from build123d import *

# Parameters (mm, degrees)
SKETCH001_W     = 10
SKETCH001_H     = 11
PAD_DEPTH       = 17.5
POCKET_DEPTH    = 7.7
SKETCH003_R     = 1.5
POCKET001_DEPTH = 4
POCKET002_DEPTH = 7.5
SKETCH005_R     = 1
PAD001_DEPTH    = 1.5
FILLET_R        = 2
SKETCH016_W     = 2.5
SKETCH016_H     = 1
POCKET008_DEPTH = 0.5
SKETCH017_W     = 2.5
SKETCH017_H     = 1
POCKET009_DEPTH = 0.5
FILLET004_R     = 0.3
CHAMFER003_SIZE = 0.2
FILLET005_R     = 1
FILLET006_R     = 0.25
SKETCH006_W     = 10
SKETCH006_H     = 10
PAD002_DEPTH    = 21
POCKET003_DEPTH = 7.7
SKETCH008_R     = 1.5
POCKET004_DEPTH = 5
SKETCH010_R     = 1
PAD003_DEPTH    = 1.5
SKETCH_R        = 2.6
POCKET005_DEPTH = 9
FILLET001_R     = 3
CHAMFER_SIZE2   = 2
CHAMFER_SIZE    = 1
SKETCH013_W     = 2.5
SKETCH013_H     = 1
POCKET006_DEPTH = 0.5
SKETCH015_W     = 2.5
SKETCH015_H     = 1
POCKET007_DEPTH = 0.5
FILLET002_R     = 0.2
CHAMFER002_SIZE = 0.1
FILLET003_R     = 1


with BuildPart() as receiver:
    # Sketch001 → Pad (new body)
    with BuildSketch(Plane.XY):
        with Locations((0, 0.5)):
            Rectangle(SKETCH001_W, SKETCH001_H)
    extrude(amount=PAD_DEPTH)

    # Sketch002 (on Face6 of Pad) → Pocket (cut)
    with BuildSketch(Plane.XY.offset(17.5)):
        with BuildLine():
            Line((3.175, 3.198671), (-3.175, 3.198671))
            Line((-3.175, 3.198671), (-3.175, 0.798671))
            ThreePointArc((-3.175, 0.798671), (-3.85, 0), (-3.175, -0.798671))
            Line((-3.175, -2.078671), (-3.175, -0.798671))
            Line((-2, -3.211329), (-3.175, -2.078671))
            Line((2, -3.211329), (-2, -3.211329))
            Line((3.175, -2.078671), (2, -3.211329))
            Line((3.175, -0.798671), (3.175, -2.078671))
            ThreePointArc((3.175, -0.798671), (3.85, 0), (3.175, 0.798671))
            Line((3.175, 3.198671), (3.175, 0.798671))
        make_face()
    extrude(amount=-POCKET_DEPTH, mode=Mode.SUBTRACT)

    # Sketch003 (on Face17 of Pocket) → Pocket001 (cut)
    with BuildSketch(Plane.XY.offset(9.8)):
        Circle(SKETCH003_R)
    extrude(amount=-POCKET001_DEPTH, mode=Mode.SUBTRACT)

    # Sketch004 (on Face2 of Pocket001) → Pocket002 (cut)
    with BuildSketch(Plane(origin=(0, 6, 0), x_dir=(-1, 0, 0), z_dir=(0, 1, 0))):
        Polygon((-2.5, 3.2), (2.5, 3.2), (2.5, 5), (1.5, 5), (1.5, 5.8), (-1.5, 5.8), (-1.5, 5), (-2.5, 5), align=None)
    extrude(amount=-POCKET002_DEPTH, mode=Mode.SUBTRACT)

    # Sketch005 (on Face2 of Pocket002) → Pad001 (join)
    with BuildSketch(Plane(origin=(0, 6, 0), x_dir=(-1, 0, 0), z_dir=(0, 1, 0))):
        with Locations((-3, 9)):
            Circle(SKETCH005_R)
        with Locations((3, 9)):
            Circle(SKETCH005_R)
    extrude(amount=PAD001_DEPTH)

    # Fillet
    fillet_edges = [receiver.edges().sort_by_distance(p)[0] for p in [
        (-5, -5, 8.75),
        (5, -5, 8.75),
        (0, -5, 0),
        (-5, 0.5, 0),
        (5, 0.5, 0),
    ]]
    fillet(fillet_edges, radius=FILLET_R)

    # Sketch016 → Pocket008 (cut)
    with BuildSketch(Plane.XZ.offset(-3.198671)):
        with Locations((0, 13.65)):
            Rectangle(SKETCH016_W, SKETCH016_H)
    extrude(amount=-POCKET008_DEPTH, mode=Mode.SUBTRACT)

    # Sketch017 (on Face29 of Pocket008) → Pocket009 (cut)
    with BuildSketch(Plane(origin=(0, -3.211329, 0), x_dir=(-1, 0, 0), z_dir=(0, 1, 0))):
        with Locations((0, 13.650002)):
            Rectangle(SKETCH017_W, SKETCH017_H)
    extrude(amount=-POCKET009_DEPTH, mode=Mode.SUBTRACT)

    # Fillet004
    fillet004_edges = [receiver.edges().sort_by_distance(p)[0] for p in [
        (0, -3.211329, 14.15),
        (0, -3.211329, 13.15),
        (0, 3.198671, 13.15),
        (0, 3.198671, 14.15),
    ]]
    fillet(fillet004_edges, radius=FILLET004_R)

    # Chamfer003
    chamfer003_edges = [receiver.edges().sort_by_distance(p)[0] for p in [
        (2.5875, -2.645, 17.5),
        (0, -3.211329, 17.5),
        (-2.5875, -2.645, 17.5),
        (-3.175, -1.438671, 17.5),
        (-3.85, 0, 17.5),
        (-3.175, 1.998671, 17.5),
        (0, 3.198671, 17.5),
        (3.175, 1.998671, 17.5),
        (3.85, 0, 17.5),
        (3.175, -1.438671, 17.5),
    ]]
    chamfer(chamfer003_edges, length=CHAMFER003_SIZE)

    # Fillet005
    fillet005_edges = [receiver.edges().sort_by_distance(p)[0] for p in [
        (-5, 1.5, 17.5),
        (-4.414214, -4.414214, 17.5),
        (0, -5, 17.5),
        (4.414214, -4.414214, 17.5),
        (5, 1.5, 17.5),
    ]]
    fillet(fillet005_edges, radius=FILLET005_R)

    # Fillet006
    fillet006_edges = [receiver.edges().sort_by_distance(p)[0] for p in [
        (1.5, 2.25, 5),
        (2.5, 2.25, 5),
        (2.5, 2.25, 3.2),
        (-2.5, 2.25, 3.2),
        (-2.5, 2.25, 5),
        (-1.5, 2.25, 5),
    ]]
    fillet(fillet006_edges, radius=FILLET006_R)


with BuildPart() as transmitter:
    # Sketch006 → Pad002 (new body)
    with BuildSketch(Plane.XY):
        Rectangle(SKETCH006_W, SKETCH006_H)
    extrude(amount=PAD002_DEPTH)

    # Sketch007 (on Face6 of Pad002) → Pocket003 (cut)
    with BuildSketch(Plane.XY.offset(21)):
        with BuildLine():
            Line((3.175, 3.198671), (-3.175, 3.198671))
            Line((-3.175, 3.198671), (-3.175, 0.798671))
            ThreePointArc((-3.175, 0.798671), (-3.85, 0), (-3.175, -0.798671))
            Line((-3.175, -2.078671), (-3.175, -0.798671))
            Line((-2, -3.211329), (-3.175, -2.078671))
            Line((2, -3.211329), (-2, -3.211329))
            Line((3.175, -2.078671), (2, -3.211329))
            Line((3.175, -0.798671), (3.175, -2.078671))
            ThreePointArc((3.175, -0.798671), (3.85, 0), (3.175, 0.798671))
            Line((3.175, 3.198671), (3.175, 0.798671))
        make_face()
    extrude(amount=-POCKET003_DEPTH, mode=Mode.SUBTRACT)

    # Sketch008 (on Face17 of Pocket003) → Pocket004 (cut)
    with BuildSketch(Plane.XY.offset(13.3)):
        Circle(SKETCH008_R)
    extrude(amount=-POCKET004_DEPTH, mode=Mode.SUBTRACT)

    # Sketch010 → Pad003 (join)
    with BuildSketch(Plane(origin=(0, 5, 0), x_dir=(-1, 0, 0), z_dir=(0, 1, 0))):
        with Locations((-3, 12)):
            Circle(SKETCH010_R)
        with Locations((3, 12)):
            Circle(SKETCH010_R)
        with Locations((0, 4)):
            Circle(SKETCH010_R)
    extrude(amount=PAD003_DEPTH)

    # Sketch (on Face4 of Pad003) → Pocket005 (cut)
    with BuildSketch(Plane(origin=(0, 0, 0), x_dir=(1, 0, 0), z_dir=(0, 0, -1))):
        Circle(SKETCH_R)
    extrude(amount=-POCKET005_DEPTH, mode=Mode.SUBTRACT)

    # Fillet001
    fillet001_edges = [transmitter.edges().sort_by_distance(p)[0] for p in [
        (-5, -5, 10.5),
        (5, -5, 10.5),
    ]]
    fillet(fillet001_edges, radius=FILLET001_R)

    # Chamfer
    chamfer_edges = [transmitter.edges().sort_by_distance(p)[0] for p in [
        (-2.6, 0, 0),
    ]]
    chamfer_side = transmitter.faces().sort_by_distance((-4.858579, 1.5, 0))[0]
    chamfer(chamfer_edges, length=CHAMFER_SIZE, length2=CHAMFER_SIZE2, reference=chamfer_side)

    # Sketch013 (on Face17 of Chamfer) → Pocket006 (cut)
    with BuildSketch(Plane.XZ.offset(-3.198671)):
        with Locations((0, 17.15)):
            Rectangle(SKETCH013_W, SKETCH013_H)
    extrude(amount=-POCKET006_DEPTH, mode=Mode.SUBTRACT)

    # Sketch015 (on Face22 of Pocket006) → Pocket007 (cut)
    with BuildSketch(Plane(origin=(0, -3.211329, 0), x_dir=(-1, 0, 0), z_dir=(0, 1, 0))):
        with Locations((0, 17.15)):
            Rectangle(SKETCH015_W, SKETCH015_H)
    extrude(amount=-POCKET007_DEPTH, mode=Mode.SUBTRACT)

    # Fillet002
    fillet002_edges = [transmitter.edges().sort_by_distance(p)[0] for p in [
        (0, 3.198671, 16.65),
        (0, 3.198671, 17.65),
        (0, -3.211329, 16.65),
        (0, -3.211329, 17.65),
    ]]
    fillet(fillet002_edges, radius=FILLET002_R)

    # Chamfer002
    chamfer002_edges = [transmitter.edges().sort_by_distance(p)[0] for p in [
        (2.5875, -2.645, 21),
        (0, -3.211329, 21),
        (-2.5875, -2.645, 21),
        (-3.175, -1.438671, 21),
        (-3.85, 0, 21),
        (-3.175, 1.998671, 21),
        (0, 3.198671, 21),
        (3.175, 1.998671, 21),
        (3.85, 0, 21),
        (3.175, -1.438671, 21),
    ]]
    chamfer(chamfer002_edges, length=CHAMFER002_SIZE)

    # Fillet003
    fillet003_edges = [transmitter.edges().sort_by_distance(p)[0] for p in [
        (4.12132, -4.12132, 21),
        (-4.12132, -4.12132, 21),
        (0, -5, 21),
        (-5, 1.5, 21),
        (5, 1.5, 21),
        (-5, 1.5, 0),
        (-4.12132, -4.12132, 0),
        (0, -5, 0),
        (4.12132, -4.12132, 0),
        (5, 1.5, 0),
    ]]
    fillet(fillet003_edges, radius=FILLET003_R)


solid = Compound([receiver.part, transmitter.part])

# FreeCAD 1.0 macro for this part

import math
import FreeCAD as App
import Part
import Sketcher
from FreeCAD import Vector


def edges_at(feature, points):
    """Names of the edges that pass closest to the given points."""
    edges = feature.Shape.Edges
    near = lambda p: min(range(len(edges)), key=lambda i: edges[i].distToShape(Part.Vertex(*p))[0])
    return sorted({f"Edge{near(p) + 1}" for p in points})

doc = App.newDocument("Part")
body = doc.addObject("PartDesign::Body", "Body")

sketch1 = doc.addObject("Sketcher::SketchObject", "Sketch")
body.addObject(sketch1)
sketch1.AttachmentSupport = (doc.XY_Plane, [""])
sketch1.MapMode = "FlatFace"
sketch1.addGeometry([
    Part.LineSegment(Vector(-5, 6, 0), Vector(-5, -5, 0)),
    Part.LineSegment(Vector(-5, -5, 0), Vector(5, -5, 0)),
    Part.LineSegment(Vector(5, -5, 0), Vector(5, 6, 0)),
    Part.LineSegment(Vector(5, 6, 0), Vector(-5, 6, 0)),
], False)
sketch1.addConstraint([
    Sketcher.Constraint("Coincident", 0, 2, 1, 1),
    Sketcher.Constraint("Coincident", 1, 2, 2, 1),
    Sketcher.Constraint("Coincident", 2, 2, 3, 1),
    Sketcher.Constraint("Coincident", 3, 2, 0, 1),
    Sketcher.Constraint("Vertical", 0),
    Sketcher.Constraint("Horizontal", 1),
    Sketcher.Constraint("Vertical", 2),
    Sketcher.Constraint("Horizontal", 3),
    Sketcher.Constraint("DistanceX", 1, 1, 1, 2, 10.0),
    Sketcher.Constraint("DistanceY", 0, 2, 0, 1, 11.0),
    Sketcher.Constraint("DistanceX", 0, 2, -1, 1, 5.0),
    Sketcher.Constraint("DistanceY", 0, 2, -1, 1, 5.0),
])
pad1 = doc.addObject("PartDesign::Pad", "Pad")
body.addObject(pad1)
pad1.Profile = sketch1
pad1.Length = 17.5

sketch2 = doc.addObject("Sketcher::SketchObject", "Sketch001")
body.addObject(sketch2)
sketch2.AttachmentSupport = (doc.XY_Plane, [""])
sketch2.MapMode = "FlatFace"
sketch2.AttachmentOffset = App.Placement(Vector(0, 0, 17.5), App.Rotation())
sketch2.addGeometry([
    Part.LineSegment(Vector(3.2, 3.2, 0), Vector(-3.2, 3.2, 0)),
    Part.LineSegment(Vector(-3.2, 3.2, 0), Vector(-3.2, 0.8, 0)),
    Part.ArcOfCircle(Part.Circle(Vector(-3, 0, 0), Vector(0, 0, 1), 0.8), math.radians(100), math.radians(260)),
    Part.LineSegment(Vector(-3.2, -0.8, 0), Vector(-3.2, -2.1, 0)),
    Part.LineSegment(Vector(-3.2, -2.1, 0), Vector(-2, -3.2, 0)),
    Part.LineSegment(Vector(-2, -3.2, 0), Vector(2, -3.2, 0)),
    Part.LineSegment(Vector(2, -3.2, 0), Vector(3.2, -2.1, 0)),
    Part.LineSegment(Vector(3.2, -2.1, 0), Vector(3.2, -0.8, 0)),
    Part.ArcOfCircle(Part.Circle(Vector(3, 0, 0), Vector(0, 0, 1), 0.8), math.radians(-80), math.radians(80)),
    Part.LineSegment(Vector(3.2, 0.8, 0), Vector(3.2, 3.2, 0)),
], False)
sketch2.addConstraint([
    Sketcher.Constraint("Coincident", 0, 2, 1, 1),
    Sketcher.Constraint("Coincident", 1, 2, 2, 1),
    Sketcher.Constraint("Coincident", 2, 2, 3, 1),
    Sketcher.Constraint("Coincident", 3, 2, 4, 1),
    Sketcher.Constraint("Coincident", 4, 2, 5, 1),
    Sketcher.Constraint("Coincident", 5, 2, 6, 1),
    Sketcher.Constraint("Coincident", 6, 2, 7, 1),
    Sketcher.Constraint("Coincident", 7, 2, 8, 1),
    Sketcher.Constraint("Coincident", 8, 2, 9, 1),
    Sketcher.Constraint("Coincident", 9, 2, 0, 1),
    Sketcher.Constraint("Horizontal", 0),
    Sketcher.Constraint("Vertical", 1),
    Sketcher.Constraint("Vertical", 3),
    Sketcher.Constraint("Horizontal", 5),
    Sketcher.Constraint("Vertical", 7),
    Sketcher.Constraint("Vertical", 9),
    Sketcher.Constraint("Equal", 2, 8),
    Sketcher.Constraint("Symmetric", 2, 3, 8, 3, -1, 1),
    Sketcher.Constraint("Symmetric", 3, 2, 6, 2, -2),
    Sketcher.Constraint("Symmetric", 1, 2, 8, 2, -2),
    Sketcher.Constraint("Vertical", 1, 2, 2, 2),
    Sketcher.Constraint("Equal", 4, 6),
    Sketcher.Constraint("DistanceX", 5, 1, 5, 2, 4.0),
    Sketcher.Constraint("Radius", 2, 0.81),
    Sketcher.Constraint("DistanceY", 1, 2, 1, 1, 2.4),
    Sketcher.Constraint("DistanceX", 0, 2, 0, 1, 6.35),
    Sketcher.Constraint("DistanceY", 3, 2, 3, 1, 1.28),
    Sketcher.Constraint("DistanceX", 2, 3, -1, 1, 3.04),
    Sketcher.Constraint("DistanceY", 4, 2, 1, 2, 4.01),
])
pocket1 = doc.addObject("PartDesign::Pocket", "Pocket")
body.addObject(pocket1)
pocket1.Profile = sketch2
pocket1.Length = 7.7

sketch3 = doc.addObject("Sketcher::SketchObject", "Sketch002")
body.addObject(sketch3)
sketch3.AttachmentSupport = (doc.XY_Plane, [""])
sketch3.MapMode = "FlatFace"
sketch3.AttachmentOffset = App.Placement(Vector(0, 0, 9.8), App.Rotation())
sketch3.addGeometry(Part.Circle(Vector(0, 0, 0), Vector(0, 0, 1), 1.5), False)
sketch3.addConstraint([
    Sketcher.Constraint("Coincident", 0, 3, -1, 1),
    Sketcher.Constraint("Diameter", 0, 3.0),
])
pocket2 = doc.addObject("PartDesign::Pocket", "Pocket001")
body.addObject(pocket2)
pocket2.Profile = sketch3
pocket2.Length = 4

sketch4 = doc.addObject("Sketcher::SketchObject", "Sketch003")
body.addObject(sketch4)
sketch4.AttachmentSupport = (doc.XZ_Plane, [""])
sketch4.MapMode = "FlatFace"
sketch4.AttachmentOffset = App.Placement(Vector(0, 0, -6), App.Rotation())
sketch4.addGeometry([
    Part.LineSegment(Vector(2.5, 3.2, 0), Vector(-2.5, 3.2, 0)),
    Part.LineSegment(Vector(-2.5, 3.2, 0), Vector(-2.5, 5, 0)),
    Part.LineSegment(Vector(-2.5, 5, 0), Vector(-1.5, 5, 0)),
    Part.LineSegment(Vector(-1.5, 5, 0), Vector(-1.5, 5.8, 0)),
    Part.LineSegment(Vector(-1.5, 5.8, 0), Vector(1.5, 5.8, 0)),
    Part.LineSegment(Vector(1.5, 5.8, 0), Vector(1.5, 5, 0)),
    Part.LineSegment(Vector(1.5, 5, 0), Vector(2.5, 5, 0)),
    Part.LineSegment(Vector(2.5, 5, 0), Vector(2.5, 3.2, 0)),
], False)
sketch4.addConstraint([
    Sketcher.Constraint("Coincident", 0, 2, 1, 1),
    Sketcher.Constraint("Coincident", 1, 2, 2, 1),
    Sketcher.Constraint("Coincident", 2, 2, 3, 1),
    Sketcher.Constraint("Coincident", 3, 2, 4, 1),
    Sketcher.Constraint("Coincident", 4, 2, 5, 1),
    Sketcher.Constraint("Coincident", 5, 2, 6, 1),
    Sketcher.Constraint("Coincident", 6, 2, 7, 1),
    Sketcher.Constraint("Coincident", 7, 2, 0, 1),
    Sketcher.Constraint("Horizontal", 0),
    Sketcher.Constraint("Vertical", 1),
    Sketcher.Constraint("Horizontal", 2),
    Sketcher.Constraint("Vertical", 3),
    Sketcher.Constraint("Horizontal", 4),
    Sketcher.Constraint("Vertical", 5),
    Sketcher.Constraint("Horizontal", 6),
    Sketcher.Constraint("Vertical", 7),
    Sketcher.Constraint("Symmetric", 2, 2, 5, 2, -2),
    Sketcher.Constraint("Equal", 2, 6),
    Sketcher.Constraint("DistanceX", 0, 2, 0, 1, 5.0),
    Sketcher.Constraint("DistanceX", 2, 1, 2, 2, 1.0),
    Sketcher.Constraint("DistanceY", 1, 1, 1, 2, 1.8),
    Sketcher.Constraint("DistanceY", 3, 1, 3, 2, 0.8),
    Sketcher.Constraint("DistanceY", -1, 1, 1, 2, 5.0),
])
pocket3 = doc.addObject("PartDesign::Pocket", "Pocket002")
body.addObject(pocket3)
pocket3.Profile = sketch4
pocket3.Length = 7.5
pocket3.Reversed = True

sketch5 = doc.addObject("Sketcher::SketchObject", "Sketch004")
body.addObject(sketch5)
sketch5.AttachmentSupport = (doc.XZ_Plane, [""])
sketch5.MapMode = "FlatFace"
sketch5.AttachmentOffset = App.Placement(Vector(0, 0, -6), App.Rotation())
sketch5.addGeometry([
    Part.Circle(Vector(3, 9, 0), Vector(0, 0, 1), 1),
    Part.Circle(Vector(-3, 9, 0), Vector(0, 0, 1), 1),
], False)
sketch5.addConstraint([
    Sketcher.Constraint("Equal", 0, 1),
    Sketcher.Constraint("Symmetric", 0, 3, 1, 3, -2),
    Sketcher.Constraint("Diameter", 0, 2.0),
    Sketcher.Constraint("DistanceX", -1, 1, 0, 3, 3.0),
    Sketcher.Constraint("DistanceY", -1, 1, 0, 3, 9.0),
])
pad2 = doc.addObject("PartDesign::Pad", "Pad001")
body.addObject(pad2)
pad2.Profile = sketch5
pad2.Length = 1.5
pad2.Reversed = True
doc.recompute()

fillet = doc.addObject("PartDesign::Fillet", "Fillet")
body.addObject(fillet)
fillet.Base = (pad2, edges_at(pad2, [
    (-5, -5, 8.75),
    (5, -5, 8.75),
    (0, -5, 0),
    (-5, 0.5, 0),
    (5, 0.5, 0),
]))
fillet.Radius = 2

sketch6 = doc.addObject("Sketcher::SketchObject", "Sketch005")
body.addObject(sketch6)
sketch6.AttachmentSupport = (doc.XZ_Plane, [""])
sketch6.MapMode = "FlatFace"
sketch6.AttachmentOffset = App.Placement(Vector(0, 0, -3.198671), App.Rotation())
sketch6.addGeometry([
    Part.LineSegment(Vector(-1.2, 14.2, 0), Vector(-1.2, 13.2, 0)),
    Part.LineSegment(Vector(-1.2, 13.2, 0), Vector(1.2, 13.2, 0)),
    Part.LineSegment(Vector(1.2, 13.2, 0), Vector(1.2, 14.2, 0)),
    Part.LineSegment(Vector(1.2, 14.2, 0), Vector(-1.2, 14.2, 0)),
], False)
sketch6.addConstraint([
    Sketcher.Constraint("Coincident", 0, 2, 1, 1),
    Sketcher.Constraint("Coincident", 1, 2, 2, 1),
    Sketcher.Constraint("Coincident", 2, 2, 3, 1),
    Sketcher.Constraint("Coincident", 3, 2, 0, 1),
    Sketcher.Constraint("Vertical", 0),
    Sketcher.Constraint("Horizontal", 1),
    Sketcher.Constraint("Vertical", 2),
    Sketcher.Constraint("Horizontal", 3),
    Sketcher.Constraint("DistanceY", 0, 2, 0, 1, 1.0),
    Sketcher.Constraint("DistanceX", 1, 1, 1, 2, 2.5),
    Sketcher.Constraint("DistanceX", 0, 2, -1, 1, 1.25),
    Sketcher.Constraint("DistanceY", -1, 1, 0, 2, 13.15),
])
pocket4 = doc.addObject("PartDesign::Pocket", "Pocket003")
body.addObject(pocket4)
pocket4.Profile = sketch6
pocket4.Length = 0.5

sketch7 = doc.addObject("Sketcher::SketchObject", "Sketch006")
body.addObject(sketch7)
sketch7.AttachmentSupport = (doc.XZ_Plane, [""])
sketch7.MapMode = "FlatFace"
sketch7.AttachmentOffset = App.Placement(Vector(0, 0, 3.211329), App.Rotation())
sketch7.addGeometry([
    Part.LineSegment(Vector(1.2, 14.2, 0), Vector(1.2, 13.2, 0)),
    Part.LineSegment(Vector(1.2, 13.2, 0), Vector(-1.2, 13.2, 0)),
    Part.LineSegment(Vector(-1.2, 13.2, 0), Vector(-1.2, 14.2, 0)),
    Part.LineSegment(Vector(-1.2, 14.2, 0), Vector(1.2, 14.2, 0)),
], False)
sketch7.addConstraint([
    Sketcher.Constraint("Coincident", 0, 2, 1, 1),
    Sketcher.Constraint("Coincident", 1, 2, 2, 1),
    Sketcher.Constraint("Coincident", 2, 2, 3, 1),
    Sketcher.Constraint("Coincident", 3, 2, 0, 1),
    Sketcher.Constraint("Vertical", 0),
    Sketcher.Constraint("Horizontal", 1),
    Sketcher.Constraint("Vertical", 2),
    Sketcher.Constraint("Horizontal", 3),
    Sketcher.Constraint("DistanceY", 0, 2, 0, 1, 1.0),
    Sketcher.Constraint("DistanceX", 1, 2, 1, 1, 2.5),
    Sketcher.Constraint("DistanceX", -1, 1, 0, 2, 1.25),
    Sketcher.Constraint("DistanceY", -1, 1, 0, 2, 13.150002),
])
pocket5 = doc.addObject("PartDesign::Pocket", "Pocket004")
body.addObject(pocket5)
pocket5.Profile = sketch7
pocket5.Length = 0.5
pocket5.Reversed = True
doc.recompute()

fillet2 = doc.addObject("PartDesign::Fillet", "Fillet001")
body.addObject(fillet2)
fillet2.Base = (pocket5, edges_at(pocket5, [
    (0, -3.211, 14.15),
    (0, -3.211, 13.15),
    (0, 3.199, 13.15),
    (0, 3.199, 14.15),
]))
fillet2.Radius = 0.3
doc.recompute()

chamfer = doc.addObject("PartDesign::Chamfer", "Chamfer")
body.addObject(chamfer)
chamfer.Base = (fillet2, edges_at(fillet2, [
    (2.587, -2.645, 17.5),
    (0, -3.211, 17.5),
    (-2.587, -2.645, 17.5),
    (-3.175, -1.439, 17.5),
    (-3.85, 0, 17.5),
    (-3.175, 1.999, 17.5),
    (0, 3.199, 17.5),
    (3.175, 1.999, 17.5),
    (3.85, 0, 17.5),
    (3.175, -1.439, 17.5),
]))
chamfer.Size = 0.2
doc.recompute()

fillet3 = doc.addObject("PartDesign::Fillet", "Fillet002")
body.addObject(fillet3)
fillet3.Base = (chamfer, edges_at(chamfer, [
    (-5, 1.5, 17.5),
    (-4.414, -4.414, 17.5),
    (0, -5, 17.5),
    (4.414, -4.414, 17.5),
    (5, 1.5, 17.5),
]))
fillet3.Radius = 1
doc.recompute()

fillet4 = doc.addObject("PartDesign::Fillet", "Fillet003")
body.addObject(fillet4)
fillet4.Base = (fillet3, edges_at(fillet3, [
    (1.5, 2.25, 5),
    (2.5, 2.25, 5),
    (2.5, 2.25, 3.2),
    (-2.5, 2.25, 3.2),
    (-2.5, 2.25, 5),
    (-1.5, 2.25, 5),
]))
fillet4.Radius = 0.25
body2 = doc.addObject("PartDesign::Body", "Body001")

sketch8 = doc.addObject("Sketcher::SketchObject", "Sketch007")
body2.addObject(sketch8)
sketch8.AttachmentSupport = (doc.getObject("XY_Plane001"), [""])
sketch8.MapMode = "FlatFace"
sketch8.addGeometry([
    Part.LineSegment(Vector(-5, 5, 0), Vector(-5, -5, 0)),
    Part.LineSegment(Vector(-5, -5, 0), Vector(5, -5, 0)),
    Part.LineSegment(Vector(5, -5, 0), Vector(5, 5, 0)),
    Part.LineSegment(Vector(5, 5, 0), Vector(-5, 5, 0)),
], False)
sketch8.addConstraint([
    Sketcher.Constraint("Coincident", 0, 2, 1, 1),
    Sketcher.Constraint("Coincident", 1, 2, 2, 1),
    Sketcher.Constraint("Coincident", 2, 2, 3, 1),
    Sketcher.Constraint("Coincident", 3, 2, 0, 1),
    Sketcher.Constraint("Vertical", 0),
    Sketcher.Constraint("Horizontal", 1),
    Sketcher.Constraint("Vertical", 2),
    Sketcher.Constraint("Horizontal", 3),
    Sketcher.Constraint("Symmetric", 0, 2, 2, 2, -1, 1),
    Sketcher.Constraint("Equal", 3, 0),
    Sketcher.Constraint("DistanceX", 1, 1, 1, 2, 10.0),
])
pad3 = doc.addObject("PartDesign::Pad", "Pad002")
body2.addObject(pad3)
pad3.Profile = sketch8
pad3.Length = 21

sketch9 = doc.addObject("Sketcher::SketchObject", "Sketch008")
body2.addObject(sketch9)
sketch9.AttachmentSupport = (doc.getObject("XY_Plane001"), [""])
sketch9.MapMode = "FlatFace"
sketch9.AttachmentOffset = App.Placement(Vector(0, 0, 21), App.Rotation())
sketch9.addGeometry([
    Part.LineSegment(Vector(3.2, 3.2, 0), Vector(-3.2, 3.2, 0)),
    Part.LineSegment(Vector(-3.2, 3.2, 0), Vector(-3.2, 0.8, 0)),
    Part.ArcOfCircle(Part.Circle(Vector(-3, 0, 0), Vector(0, 0, 1), 0.8), math.radians(100), math.radians(260)),
    Part.LineSegment(Vector(-3.2, -0.8, 0), Vector(-3.2, -2.1, 0)),
    Part.LineSegment(Vector(-3.2, -2.1, 0), Vector(-2, -3.2, 0)),
    Part.LineSegment(Vector(-2, -3.2, 0), Vector(2, -3.2, 0)),
    Part.LineSegment(Vector(2, -3.2, 0), Vector(3.2, -2.1, 0)),
    Part.LineSegment(Vector(3.2, -2.1, 0), Vector(3.2, -0.8, 0)),
    Part.ArcOfCircle(Part.Circle(Vector(3, 0, 0), Vector(0, 0, 1), 0.8), math.radians(-80), math.radians(80)),
    Part.LineSegment(Vector(3.2, 0.8, 0), Vector(3.2, 3.2, 0)),
], False)
sketch9.addConstraint([
    Sketcher.Constraint("Coincident", 0, 2, 1, 1),
    Sketcher.Constraint("Coincident", 1, 2, 2, 1),
    Sketcher.Constraint("Coincident", 2, 2, 3, 1),
    Sketcher.Constraint("Coincident", 3, 2, 4, 1),
    Sketcher.Constraint("Coincident", 4, 2, 5, 1),
    Sketcher.Constraint("Coincident", 5, 2, 6, 1),
    Sketcher.Constraint("Coincident", 6, 2, 7, 1),
    Sketcher.Constraint("Coincident", 7, 2, 8, 1),
    Sketcher.Constraint("Coincident", 8, 2, 9, 1),
    Sketcher.Constraint("Coincident", 9, 2, 0, 1),
    Sketcher.Constraint("Horizontal", 0),
    Sketcher.Constraint("Vertical", 1),
    Sketcher.Constraint("Vertical", 3),
    Sketcher.Constraint("Horizontal", 5),
    Sketcher.Constraint("Vertical", 7),
    Sketcher.Constraint("Vertical", 9),
    Sketcher.Constraint("Equal", 2, 8),
    Sketcher.Constraint("Symmetric", 2, 3, 8, 3, -1, 1),
    Sketcher.Constraint("Symmetric", 3, 2, 6, 2, -2),
    Sketcher.Constraint("Symmetric", 1, 2, 8, 2, -2),
    Sketcher.Constraint("Vertical", 1, 2, 2, 2),
    Sketcher.Constraint("Equal", 4, 6),
    Sketcher.Constraint("DistanceX", 5, 1, 5, 2, 4.0),
    Sketcher.Constraint("Radius", 2, 0.81),
    Sketcher.Constraint("DistanceY", 1, 2, 1, 1, 2.4),
    Sketcher.Constraint("DistanceX", 0, 2, 0, 1, 6.35),
    Sketcher.Constraint("DistanceY", 3, 2, 3, 1, 1.28),
    Sketcher.Constraint("DistanceX", 2, 3, -1, 1, 3.04),
    Sketcher.Constraint("DistanceY", 4, 2, 1, 2, 4.01),
])
pocket6 = doc.addObject("PartDesign::Pocket", "Pocket005")
body2.addObject(pocket6)
pocket6.Profile = sketch9
pocket6.Length = 7.7

sketch10 = doc.addObject("Sketcher::SketchObject", "Sketch009")
body2.addObject(sketch10)
sketch10.AttachmentSupport = (doc.getObject("XY_Plane001"), [""])
sketch10.MapMode = "FlatFace"
sketch10.AttachmentOffset = App.Placement(Vector(0, 0, 13.3), App.Rotation())
sketch10.addGeometry(Part.Circle(Vector(0, 0, 0), Vector(0, 0, 1), 1.5), False)
sketch10.addConstraint([
    Sketcher.Constraint("Coincident", 0, 3, -1, 1),
    Sketcher.Constraint("Diameter", 0, 3.0),
])
pocket7 = doc.addObject("PartDesign::Pocket", "Pocket006")
body2.addObject(pocket7)
pocket7.Profile = sketch10
pocket7.Length = 5

sketch11 = doc.addObject("Sketcher::SketchObject", "Sketch010")
body2.addObject(sketch11)
sketch11.AttachmentSupport = (doc.getObject("XZ_Plane001"), [""])
sketch11.MapMode = "FlatFace"
sketch11.AttachmentOffset = App.Placement(Vector(0, 0, -5), App.Rotation())
sketch11.addGeometry([
    Part.Circle(Vector(3, 12, 0), Vector(0, 0, 1), 1),
    Part.Circle(Vector(-3, 12, 0), Vector(0, 0, 1), 1),
    Part.Circle(Vector(0, 4, 0), Vector(0, 0, 1), 1),
], False)
sketch11.addConstraint([
    Sketcher.Constraint("Equal", 0, 1),
    Sketcher.Constraint("Equal", 1, 2),
    Sketcher.Constraint("Symmetric", 0, 3, 1, 3, -2),
    Sketcher.Constraint("PointOnObject", 2, 3, -2),
    Sketcher.Constraint("Diameter", 0, 2.0),
    Sketcher.Constraint("DistanceX", -1, 1, 0, 3, 3.0),
    Sketcher.Constraint("DistanceY", -1, 1, 0, 3, 12.0),
    Sketcher.Constraint("DistanceY", -1, 1, 2, 3, 4.0),
])
pad4 = doc.addObject("PartDesign::Pad", "Pad003")
body2.addObject(pad4)
pad4.Profile = sketch11
pad4.Length = 1.5
pad4.Reversed = True

sketch12 = doc.addObject("Sketcher::SketchObject", "Sketch011")
body2.addObject(sketch12)
sketch12.AttachmentSupport = (doc.getObject("XY_Plane001"), [""])
sketch12.MapMode = "FlatFace"
sketch12.addGeometry(Part.Circle(Vector(0, 0, 0), Vector(0, 0, 1), 2.6), False)
sketch12.addConstraint([
    Sketcher.Constraint("Coincident", 0, 3, -1, 1),
    Sketcher.Constraint("Diameter", 0, 5.2),
])
pocket8 = doc.addObject("PartDesign::Pocket", "Pocket007")
body2.addObject(pocket8)
pocket8.Profile = sketch12
pocket8.Length = 9
pocket8.Reversed = True
doc.recompute()

fillet5 = doc.addObject("PartDesign::Fillet", "Fillet004")
body2.addObject(fillet5)
fillet5.Base = (pocket8, edges_at(pocket8, [(-5, -5, 10.5), (5, -5, 10.5)]))
fillet5.Radius = 3
doc.recompute()

chamfer2 = doc.addObject("PartDesign::Chamfer", "Chamfer001")
body2.addObject(chamfer2)
chamfer2.Base = (fillet5, edges_at(fillet5, [(-2.6, 0, 0)]))
chamfer2.ChamferType = "Two distances"
chamfer2.Size = 1
chamfer2.Size2 = 2

sketch13 = doc.addObject("Sketcher::SketchObject", "Sketch012")
body2.addObject(sketch13)
sketch13.AttachmentSupport = (doc.getObject("XZ_Plane001"), [""])
sketch13.MapMode = "FlatFace"
sketch13.AttachmentOffset = App.Placement(Vector(0, 0, -3.198671), App.Rotation())
sketch13.addGeometry([
    Part.LineSegment(Vector(-1.2, 17.6, 0), Vector(-1.2, 16.6, 0)),
    Part.LineSegment(Vector(-1.2, 16.6, 0), Vector(1.2, 16.6, 0)),
    Part.LineSegment(Vector(1.2, 16.6, 0), Vector(1.2, 17.6, 0)),
    Part.LineSegment(Vector(1.2, 17.6, 0), Vector(-1.2, 17.6, 0)),
], False)
sketch13.addConstraint([
    Sketcher.Constraint("Coincident", 0, 2, 1, 1),
    Sketcher.Constraint("Coincident", 1, 2, 2, 1),
    Sketcher.Constraint("Coincident", 2, 2, 3, 1),
    Sketcher.Constraint("Coincident", 3, 2, 0, 1),
    Sketcher.Constraint("Vertical", 0),
    Sketcher.Constraint("Horizontal", 1),
    Sketcher.Constraint("Vertical", 2),
    Sketcher.Constraint("Horizontal", 3),
    Sketcher.Constraint("DistanceY", 0, 2, 0, 1, 1.0),
    Sketcher.Constraint("DistanceX", 1, 1, 1, 2, 2.5),
    Sketcher.Constraint("DistanceX", 0, 2, -1, 1, 1.25),
    Sketcher.Constraint("DistanceY", -1, 1, 0, 2, 16.65),
])
pocket9 = doc.addObject("PartDesign::Pocket", "Pocket008")
body2.addObject(pocket9)
pocket9.Profile = sketch13
pocket9.Length = 0.5

sketch14 = doc.addObject("Sketcher::SketchObject", "Sketch013")
body2.addObject(sketch14)
sketch14.AttachmentSupport = (doc.getObject("XZ_Plane001"), [""])
sketch14.MapMode = "FlatFace"
sketch14.AttachmentOffset = App.Placement(Vector(0, 0, 3.211329), App.Rotation())
sketch14.addGeometry([
    Part.LineSegment(Vector(1.2, 17.6, 0), Vector(1.2, 16.6, 0)),
    Part.LineSegment(Vector(1.2, 16.6, 0), Vector(-1.2, 16.6, 0)),
    Part.LineSegment(Vector(-1.2, 16.6, 0), Vector(-1.2, 17.6, 0)),
    Part.LineSegment(Vector(-1.2, 17.6, 0), Vector(1.2, 17.6, 0)),
], False)
sketch14.addConstraint([
    Sketcher.Constraint("Coincident", 0, 2, 1, 1),
    Sketcher.Constraint("Coincident", 1, 2, 2, 1),
    Sketcher.Constraint("Coincident", 2, 2, 3, 1),
    Sketcher.Constraint("Coincident", 3, 2, 0, 1),
    Sketcher.Constraint("Vertical", 0),
    Sketcher.Constraint("Horizontal", 1),
    Sketcher.Constraint("Vertical", 2),
    Sketcher.Constraint("Horizontal", 3),
    Sketcher.Constraint("DistanceY", 0, 2, 0, 1, 1.0),
    Sketcher.Constraint("DistanceX", 1, 2, 1, 1, 2.5),
    Sketcher.Constraint("DistanceX", -1, 1, 0, 2, 1.25),
    Sketcher.Constraint("DistanceY", -1, 1, 0, 2, 16.65),
])
pocket10 = doc.addObject("PartDesign::Pocket", "Pocket009")
body2.addObject(pocket10)
pocket10.Profile = sketch14
pocket10.Length = 0.5
pocket10.Reversed = True
doc.recompute()

fillet6 = doc.addObject("PartDesign::Fillet", "Fillet005")
body2.addObject(fillet6)
fillet6.Base = (pocket10, edges_at(pocket10, [
    (0, 3.199, 16.65),
    (0, 3.199, 17.65),
    (0, -3.211, 16.65),
    (0, -3.211, 17.65),
]))
fillet6.Radius = 0.2
doc.recompute()

chamfer3 = doc.addObject("PartDesign::Chamfer", "Chamfer002")
body2.addObject(chamfer3)
chamfer3.Base = (fillet6, edges_at(fillet6, [
    (2.587, -2.645, 21),
    (0, -3.211, 21),
    (-2.587, -2.645, 21),
    (-3.175, -1.439, 21),
    (-3.85, 0, 21),
    (-3.175, 1.999, 21),
    (0, 3.199, 21),
    (3.175, 1.999, 21),
    (3.85, 0, 21),
    (3.175, -1.439, 21),
]))
chamfer3.Size = 0.1
doc.recompute()

fillet7 = doc.addObject("PartDesign::Fillet", "Fillet006")
body2.addObject(fillet7)
fillet7.Base = (chamfer3, edges_at(chamfer3, [
    (4.121, -4.121, 21),
    (-4.121, -4.121, 21),
    (0, -5, 21),
    (-5, 1.5, 21),
    (5, 1.5, 21),
    (-5, 1.5, 0),
    (-4.121, -4.121, 0),
    (0, -5, 0),
    (4.121, -4.121, 0),
    (5, 1.5, 0),
]))
fillet7.Radius = 1

doc.recompute()
